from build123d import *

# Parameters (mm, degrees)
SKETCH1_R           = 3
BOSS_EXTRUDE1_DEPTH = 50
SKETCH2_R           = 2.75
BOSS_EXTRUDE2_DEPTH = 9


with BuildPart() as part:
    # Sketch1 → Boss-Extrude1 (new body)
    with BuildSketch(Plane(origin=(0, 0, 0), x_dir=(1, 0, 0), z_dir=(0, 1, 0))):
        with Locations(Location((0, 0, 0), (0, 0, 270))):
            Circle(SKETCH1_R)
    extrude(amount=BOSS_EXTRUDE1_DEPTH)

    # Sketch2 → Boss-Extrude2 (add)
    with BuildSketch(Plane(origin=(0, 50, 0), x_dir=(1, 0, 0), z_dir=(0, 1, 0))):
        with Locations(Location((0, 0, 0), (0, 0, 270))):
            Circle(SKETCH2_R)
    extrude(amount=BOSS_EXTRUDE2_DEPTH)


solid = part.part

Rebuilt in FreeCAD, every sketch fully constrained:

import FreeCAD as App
import Part
import Sketcher

V = App.Vector

doc = App.newDocument("Part")
body = doc.addObject("PartDesign::Body", "Body")

# Sketch on XZ plane
sketch1 = doc.addObject("Sketcher::SketchObject", "Sketch")
body.addObject(sketch1)
sketch1.AttachmentSupport = (doc.XZ_Plane, [""])
sketch1.MapMode = "FlatFace"
sketch1.addGeometry(Part.Circle(V(0, 0, 0), V(0, 0, 1), 3), False)
sketch1.addConstraint(Sketcher.Constraint("Coincident", 0, 3, -1, 1))
sketch1.addConstraint(Sketcher.Constraint("Diameter", 0, 6.0))
pad1 = doc.addObject("PartDesign::Pad", "Pad")
body.addObject(pad1)
pad1.Profile = sketch1
pad1.Length = 50
pad1.Reversed = True

# Sketch on XZ plane
sketch2 = doc.addObject("Sketcher::SketchObject", "Sketch001")
body.addObject(sketch2)
sketch2.AttachmentSupport = (doc.XZ_Plane, [""])
sketch2.MapMode = "FlatFace"
sketch2.AttachmentOffset = App.Placement(V(0, 0, -50), App.Rotation())
sketch2.addGeometry(Part.Circle(V(0, 0, 0), V(0, 0, 1), 2.8), False)
sketch2.addConstraint(Sketcher.Constraint("Coincident", 0, 3, -1, 1))
sketch2.addConstraint(Sketcher.Constraint("Diameter", 0, 5.5))
pad2 = doc.addObject("PartDesign::Pad", "Pad001")
body.addObject(pad2)
pad2.Profile = sketch2
pad2.Length = 9
pad2.Reversed = True

doc.recompute()
